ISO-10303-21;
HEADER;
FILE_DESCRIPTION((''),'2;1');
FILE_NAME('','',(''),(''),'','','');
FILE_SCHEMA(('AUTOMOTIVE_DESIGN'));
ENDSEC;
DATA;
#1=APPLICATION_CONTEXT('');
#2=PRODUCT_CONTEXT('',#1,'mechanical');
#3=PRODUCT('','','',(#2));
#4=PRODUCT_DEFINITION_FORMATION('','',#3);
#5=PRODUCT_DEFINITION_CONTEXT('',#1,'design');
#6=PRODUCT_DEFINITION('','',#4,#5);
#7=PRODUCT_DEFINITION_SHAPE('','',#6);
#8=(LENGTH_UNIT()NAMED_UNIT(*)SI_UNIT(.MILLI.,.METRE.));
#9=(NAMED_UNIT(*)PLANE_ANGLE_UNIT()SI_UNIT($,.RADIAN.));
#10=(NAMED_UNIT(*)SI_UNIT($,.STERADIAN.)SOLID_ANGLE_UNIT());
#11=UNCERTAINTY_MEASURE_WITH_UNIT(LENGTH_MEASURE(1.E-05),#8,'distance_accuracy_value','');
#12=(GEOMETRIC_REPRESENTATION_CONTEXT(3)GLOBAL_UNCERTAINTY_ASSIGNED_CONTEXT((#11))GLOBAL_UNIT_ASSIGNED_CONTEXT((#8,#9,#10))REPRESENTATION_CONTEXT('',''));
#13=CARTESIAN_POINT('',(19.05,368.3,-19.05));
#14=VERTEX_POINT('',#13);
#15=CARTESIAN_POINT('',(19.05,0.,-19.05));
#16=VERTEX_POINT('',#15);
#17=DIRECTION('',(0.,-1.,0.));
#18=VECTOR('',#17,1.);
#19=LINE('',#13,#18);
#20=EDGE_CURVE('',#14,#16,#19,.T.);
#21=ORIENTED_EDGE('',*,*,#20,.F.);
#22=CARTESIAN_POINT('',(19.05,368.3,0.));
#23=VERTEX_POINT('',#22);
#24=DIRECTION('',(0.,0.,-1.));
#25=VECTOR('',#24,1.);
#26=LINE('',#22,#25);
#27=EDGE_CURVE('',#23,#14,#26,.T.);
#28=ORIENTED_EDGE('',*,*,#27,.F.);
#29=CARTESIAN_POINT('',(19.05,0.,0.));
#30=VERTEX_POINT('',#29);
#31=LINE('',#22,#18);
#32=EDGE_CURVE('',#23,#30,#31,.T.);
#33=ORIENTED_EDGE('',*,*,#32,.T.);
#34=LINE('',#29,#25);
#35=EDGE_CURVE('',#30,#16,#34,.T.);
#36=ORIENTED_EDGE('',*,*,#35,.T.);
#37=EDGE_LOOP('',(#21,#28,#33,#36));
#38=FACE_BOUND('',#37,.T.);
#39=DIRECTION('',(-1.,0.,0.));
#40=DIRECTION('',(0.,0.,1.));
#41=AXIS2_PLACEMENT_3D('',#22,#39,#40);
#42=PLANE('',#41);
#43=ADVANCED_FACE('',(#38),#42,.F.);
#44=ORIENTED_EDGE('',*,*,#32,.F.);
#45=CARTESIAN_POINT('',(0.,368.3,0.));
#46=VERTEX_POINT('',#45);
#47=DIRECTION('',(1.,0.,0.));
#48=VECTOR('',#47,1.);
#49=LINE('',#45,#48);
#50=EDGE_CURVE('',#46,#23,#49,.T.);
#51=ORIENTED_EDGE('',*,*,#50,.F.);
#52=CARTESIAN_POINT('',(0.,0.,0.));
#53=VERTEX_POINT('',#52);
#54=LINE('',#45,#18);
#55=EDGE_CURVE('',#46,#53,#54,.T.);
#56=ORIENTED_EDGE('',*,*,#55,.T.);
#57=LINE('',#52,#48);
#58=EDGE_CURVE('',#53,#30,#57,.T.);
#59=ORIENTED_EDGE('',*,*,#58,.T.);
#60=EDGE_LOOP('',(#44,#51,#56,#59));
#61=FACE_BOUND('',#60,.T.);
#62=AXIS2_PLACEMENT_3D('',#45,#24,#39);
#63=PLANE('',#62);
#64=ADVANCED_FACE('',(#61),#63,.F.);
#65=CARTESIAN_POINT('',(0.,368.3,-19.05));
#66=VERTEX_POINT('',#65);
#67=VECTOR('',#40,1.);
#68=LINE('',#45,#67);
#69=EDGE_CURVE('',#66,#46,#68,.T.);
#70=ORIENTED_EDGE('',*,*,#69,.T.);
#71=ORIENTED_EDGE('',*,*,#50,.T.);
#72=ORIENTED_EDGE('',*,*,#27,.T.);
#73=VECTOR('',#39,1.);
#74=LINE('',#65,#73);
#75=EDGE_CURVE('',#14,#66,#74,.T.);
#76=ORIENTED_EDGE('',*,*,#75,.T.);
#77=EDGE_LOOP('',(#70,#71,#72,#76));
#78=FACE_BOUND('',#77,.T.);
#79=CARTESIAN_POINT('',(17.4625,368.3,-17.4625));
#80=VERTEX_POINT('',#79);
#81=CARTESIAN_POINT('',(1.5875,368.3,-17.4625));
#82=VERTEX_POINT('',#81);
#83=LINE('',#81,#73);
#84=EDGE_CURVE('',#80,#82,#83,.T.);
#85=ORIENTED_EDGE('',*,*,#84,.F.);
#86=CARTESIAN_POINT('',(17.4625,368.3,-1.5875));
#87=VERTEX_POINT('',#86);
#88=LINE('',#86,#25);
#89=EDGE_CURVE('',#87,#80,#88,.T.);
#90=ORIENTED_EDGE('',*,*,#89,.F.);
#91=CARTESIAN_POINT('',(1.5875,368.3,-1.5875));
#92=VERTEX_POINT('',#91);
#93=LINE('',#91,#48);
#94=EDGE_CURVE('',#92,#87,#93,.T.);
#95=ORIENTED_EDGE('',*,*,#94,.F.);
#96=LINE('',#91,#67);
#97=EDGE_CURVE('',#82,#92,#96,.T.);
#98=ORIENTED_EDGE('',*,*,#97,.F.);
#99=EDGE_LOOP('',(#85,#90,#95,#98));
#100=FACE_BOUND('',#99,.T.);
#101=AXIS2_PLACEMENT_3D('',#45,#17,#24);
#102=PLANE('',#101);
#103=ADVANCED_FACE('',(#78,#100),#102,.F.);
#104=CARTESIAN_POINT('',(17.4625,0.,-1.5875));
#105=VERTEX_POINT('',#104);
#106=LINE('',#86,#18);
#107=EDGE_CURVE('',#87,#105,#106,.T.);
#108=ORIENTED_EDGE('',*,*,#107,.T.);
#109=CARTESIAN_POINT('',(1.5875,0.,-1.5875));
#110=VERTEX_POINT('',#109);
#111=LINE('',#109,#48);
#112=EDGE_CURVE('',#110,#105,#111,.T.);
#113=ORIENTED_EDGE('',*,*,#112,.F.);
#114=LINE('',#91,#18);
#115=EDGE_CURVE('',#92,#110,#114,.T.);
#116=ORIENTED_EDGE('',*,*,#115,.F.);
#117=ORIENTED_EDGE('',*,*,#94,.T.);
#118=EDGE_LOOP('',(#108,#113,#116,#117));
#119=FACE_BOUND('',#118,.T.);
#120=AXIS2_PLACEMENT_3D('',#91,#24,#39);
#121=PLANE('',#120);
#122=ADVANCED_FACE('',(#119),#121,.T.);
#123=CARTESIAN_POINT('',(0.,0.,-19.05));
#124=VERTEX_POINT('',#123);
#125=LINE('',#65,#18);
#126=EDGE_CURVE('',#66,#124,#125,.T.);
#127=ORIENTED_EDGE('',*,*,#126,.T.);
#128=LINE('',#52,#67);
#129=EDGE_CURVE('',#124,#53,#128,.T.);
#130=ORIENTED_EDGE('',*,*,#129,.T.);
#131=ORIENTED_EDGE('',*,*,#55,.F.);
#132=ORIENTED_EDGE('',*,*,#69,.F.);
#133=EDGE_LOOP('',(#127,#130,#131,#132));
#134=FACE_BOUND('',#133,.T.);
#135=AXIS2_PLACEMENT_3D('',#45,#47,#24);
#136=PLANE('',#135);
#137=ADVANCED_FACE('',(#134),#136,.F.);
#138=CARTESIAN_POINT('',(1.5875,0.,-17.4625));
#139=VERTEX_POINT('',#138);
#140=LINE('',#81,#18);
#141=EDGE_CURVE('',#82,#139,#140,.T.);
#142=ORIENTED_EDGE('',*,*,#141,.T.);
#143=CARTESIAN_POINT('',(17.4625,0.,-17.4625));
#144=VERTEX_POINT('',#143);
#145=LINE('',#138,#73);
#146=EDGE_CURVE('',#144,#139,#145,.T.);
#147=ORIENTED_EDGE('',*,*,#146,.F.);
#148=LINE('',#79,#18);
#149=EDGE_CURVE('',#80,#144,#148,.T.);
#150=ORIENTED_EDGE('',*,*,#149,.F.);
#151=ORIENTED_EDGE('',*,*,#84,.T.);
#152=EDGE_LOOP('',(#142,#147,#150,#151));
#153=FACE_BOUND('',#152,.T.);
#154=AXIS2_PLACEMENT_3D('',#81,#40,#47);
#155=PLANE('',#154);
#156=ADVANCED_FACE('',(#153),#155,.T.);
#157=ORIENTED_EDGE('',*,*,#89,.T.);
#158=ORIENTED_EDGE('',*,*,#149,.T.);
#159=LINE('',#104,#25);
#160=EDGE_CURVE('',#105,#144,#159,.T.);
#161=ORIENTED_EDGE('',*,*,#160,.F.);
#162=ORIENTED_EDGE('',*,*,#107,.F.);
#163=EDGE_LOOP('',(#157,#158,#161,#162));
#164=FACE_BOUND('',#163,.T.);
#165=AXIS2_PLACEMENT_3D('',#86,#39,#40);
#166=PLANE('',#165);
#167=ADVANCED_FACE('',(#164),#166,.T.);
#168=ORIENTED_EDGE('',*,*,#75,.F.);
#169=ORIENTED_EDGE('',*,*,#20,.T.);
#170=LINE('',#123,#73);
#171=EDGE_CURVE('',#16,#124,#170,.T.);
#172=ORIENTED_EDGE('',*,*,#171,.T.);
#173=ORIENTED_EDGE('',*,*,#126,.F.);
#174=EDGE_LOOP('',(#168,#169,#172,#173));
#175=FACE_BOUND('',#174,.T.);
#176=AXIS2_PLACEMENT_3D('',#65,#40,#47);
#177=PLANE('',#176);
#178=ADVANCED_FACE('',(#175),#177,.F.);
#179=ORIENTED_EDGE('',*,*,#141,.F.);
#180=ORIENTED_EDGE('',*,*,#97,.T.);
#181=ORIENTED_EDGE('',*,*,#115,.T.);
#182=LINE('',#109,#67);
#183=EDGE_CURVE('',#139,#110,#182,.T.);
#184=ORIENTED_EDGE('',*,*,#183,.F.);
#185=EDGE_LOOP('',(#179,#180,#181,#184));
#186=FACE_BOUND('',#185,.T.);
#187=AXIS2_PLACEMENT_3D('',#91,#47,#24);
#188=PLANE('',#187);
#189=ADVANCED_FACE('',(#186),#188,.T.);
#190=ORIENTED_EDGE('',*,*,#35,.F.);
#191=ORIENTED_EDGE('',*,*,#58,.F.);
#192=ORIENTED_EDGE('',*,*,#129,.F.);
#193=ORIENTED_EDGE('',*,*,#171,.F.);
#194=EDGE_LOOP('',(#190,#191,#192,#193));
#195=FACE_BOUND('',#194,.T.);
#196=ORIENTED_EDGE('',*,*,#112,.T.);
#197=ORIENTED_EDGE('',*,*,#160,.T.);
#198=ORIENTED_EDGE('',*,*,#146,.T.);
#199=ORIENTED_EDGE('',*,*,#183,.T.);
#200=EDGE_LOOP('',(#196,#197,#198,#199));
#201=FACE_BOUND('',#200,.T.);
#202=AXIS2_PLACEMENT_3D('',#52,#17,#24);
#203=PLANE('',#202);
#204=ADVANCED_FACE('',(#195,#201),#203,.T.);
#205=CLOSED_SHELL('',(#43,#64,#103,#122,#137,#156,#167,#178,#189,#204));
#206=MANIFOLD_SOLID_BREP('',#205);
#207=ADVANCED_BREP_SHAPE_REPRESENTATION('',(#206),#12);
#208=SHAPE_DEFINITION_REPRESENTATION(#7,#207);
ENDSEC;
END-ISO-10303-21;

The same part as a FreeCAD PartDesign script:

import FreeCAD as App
import Part
import Sketcher
from FreeCAD import Vector
Q = App.Units.Quantity


def add_polygon(sketch, points):
    """Adds a closed chain of lines whose ends are joined by coincident constraints."""
    first, n = sketch.GeometryCount, len(points)
    for a, b in zip(points, points[1:] + points[:1]):
        sketch.addGeometry(Part.LineSegment(App.Vector(*a, 0), App.Vector(*b, 0)), False)
    for i in range(n):
        sketch.addConstraint(Sketcher.Constraint("Coincident", first + i, 2, first + (i + 1) % n, 1))

doc = App.newDocument("Part")
body = doc.addObject("PartDesign::Body", "Body")

# Sketch on XZ plane
sketch1 = doc.addObject("Sketcher::SketchObject", "Sketch")
body.addObject(sketch1)
sketch1.AttachmentSupport = (doc.XZ_Plane, [""])
sketch1.MapMode = "FlatFace"
add_polygon(sketch1, [(0, -19), (0, 0), (19, 0), (19, -19)])  # lines 0-3
add_polygon(sketch1, [(17, -2), (2, -2), (2, -17), (17, -17)])  # lines 4-7
sketch1.addConstraint(Sketcher.Constraint("Vertical", 0))
sketch1.addConstraint(Sketcher.Constraint("Horizontal", 1))
sketch1.addConstraint(Sketcher.Constraint("Vertical", 2))
sketch1.addConstraint(Sketcher.Constraint("Horizontal", 3))
sketch1.addConstraint(Sketcher.Constraint("Horizontal", 4))
sketch1.addConstraint(Sketcher.Constraint("Vertical", 5))
sketch1.addConstraint(Sketcher.Constraint("Horizontal", 6))
sketch1.addConstraint(Sketcher.Constraint("Vertical", 7))
sketch1.addConstraint(Sketcher.Constraint("Coincident", 0, 2, -1, 1))
sketch1.addConstraint(Sketcher.Constraint("Equal", 3, 0))
sketch1.addConstraint(Sketcher.Constraint("Equal", 6, 5))
sketch1.addConstraint(Sketcher.Constraint("DistanceX", 1, 1, 1, 2, Q("0.75 in")))
sketch1.addConstraint(Sketcher.Constraint("DistanceX", 4, 2, 4, 1, Q("0.625 in")))
sketch1.addConstraint(Sketcher.Constraint("DistanceX", -1, 1, 4, 2, Q("0.0625 in")))
sketch1.addConstraint(Sketcher.Constraint("DistanceY", 4, 2, -1, 1, Q("0.0625 in")))
pad1 = doc.addObject("PartDesign::Pad", "Pad")
body.addObject(pad1)
pad1.Profile = sketch1
pad1.Length = Q("14.5 in")
pad1.Reversed = True

doc.recompute()
